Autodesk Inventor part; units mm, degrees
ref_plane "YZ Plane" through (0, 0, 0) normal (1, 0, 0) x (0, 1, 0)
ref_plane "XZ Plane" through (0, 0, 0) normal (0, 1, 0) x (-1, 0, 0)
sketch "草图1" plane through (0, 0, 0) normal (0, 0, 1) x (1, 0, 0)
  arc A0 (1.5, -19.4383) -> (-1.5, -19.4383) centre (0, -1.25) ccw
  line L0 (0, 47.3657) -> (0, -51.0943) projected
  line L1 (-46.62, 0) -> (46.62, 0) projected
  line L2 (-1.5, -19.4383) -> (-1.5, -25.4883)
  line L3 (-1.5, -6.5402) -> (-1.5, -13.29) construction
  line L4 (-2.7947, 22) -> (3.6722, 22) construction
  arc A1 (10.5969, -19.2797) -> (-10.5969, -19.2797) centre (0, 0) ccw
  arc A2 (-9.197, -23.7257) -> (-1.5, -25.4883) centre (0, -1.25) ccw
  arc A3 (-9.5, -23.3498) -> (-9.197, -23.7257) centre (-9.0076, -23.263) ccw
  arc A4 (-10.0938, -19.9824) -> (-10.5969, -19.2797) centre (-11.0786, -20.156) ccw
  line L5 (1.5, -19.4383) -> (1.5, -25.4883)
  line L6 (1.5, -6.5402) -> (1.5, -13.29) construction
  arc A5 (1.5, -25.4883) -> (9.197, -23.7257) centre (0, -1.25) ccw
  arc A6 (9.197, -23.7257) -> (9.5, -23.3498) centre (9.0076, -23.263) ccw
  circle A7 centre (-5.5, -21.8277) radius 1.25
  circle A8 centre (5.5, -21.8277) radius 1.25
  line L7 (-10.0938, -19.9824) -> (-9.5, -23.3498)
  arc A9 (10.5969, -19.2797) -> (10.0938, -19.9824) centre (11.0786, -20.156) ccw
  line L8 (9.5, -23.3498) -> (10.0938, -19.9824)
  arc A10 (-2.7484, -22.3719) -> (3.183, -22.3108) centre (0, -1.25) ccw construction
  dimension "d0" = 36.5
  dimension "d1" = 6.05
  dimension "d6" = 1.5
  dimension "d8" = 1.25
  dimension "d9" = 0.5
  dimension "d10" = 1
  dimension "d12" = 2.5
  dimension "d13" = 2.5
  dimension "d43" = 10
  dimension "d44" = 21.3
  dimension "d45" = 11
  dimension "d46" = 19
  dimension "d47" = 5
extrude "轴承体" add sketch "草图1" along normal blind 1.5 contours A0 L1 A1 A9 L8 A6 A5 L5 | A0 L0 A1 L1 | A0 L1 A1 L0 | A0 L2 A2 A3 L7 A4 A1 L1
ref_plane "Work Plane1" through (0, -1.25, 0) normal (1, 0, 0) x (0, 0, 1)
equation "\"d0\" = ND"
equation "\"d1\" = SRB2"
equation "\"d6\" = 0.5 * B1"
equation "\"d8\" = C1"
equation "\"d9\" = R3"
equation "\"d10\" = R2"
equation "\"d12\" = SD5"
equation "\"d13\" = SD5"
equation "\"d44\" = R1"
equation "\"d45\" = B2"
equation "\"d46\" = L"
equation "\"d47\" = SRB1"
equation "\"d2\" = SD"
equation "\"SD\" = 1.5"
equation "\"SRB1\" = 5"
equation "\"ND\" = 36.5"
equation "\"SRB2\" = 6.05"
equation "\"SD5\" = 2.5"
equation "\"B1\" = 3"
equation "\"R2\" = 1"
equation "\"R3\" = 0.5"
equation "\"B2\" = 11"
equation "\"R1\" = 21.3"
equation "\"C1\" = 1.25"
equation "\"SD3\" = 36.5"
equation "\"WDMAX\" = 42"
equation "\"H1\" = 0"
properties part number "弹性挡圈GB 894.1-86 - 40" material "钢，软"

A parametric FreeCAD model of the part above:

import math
import FreeCAD as App
import Part
import Sketcher

V = App.Vector
Q = App.Units.Quantity

doc = App.newDocument("Part")
body = doc.addObject("PartDesign::Body", "Body")

# Sketch on XY plane
sketch1 = doc.addObject("Sketcher::SketchObject", "Sketch")
body.addObject(sketch1)
sketch1.AttachmentSupport = (doc.XY_Plane, [""])
sketch1.MapMode = "FlatFace"
sketch1.addGeometry(Part.LineSegment(V(1.5, -19.44, 0), V(1.5, -25.49, 0)), False)
sketch1.addGeometry(Part.ArcOfCircle(Part.Circle(V(0, -1.25, 0), V(0, 0, 1), 24.28), math.radians(-86.46), math.radians(-67.74)), False)
sketch1.addGeometry(Part.ArcOfCircle(Part.Circle(V(9.01, -23.26, 0), V(0, 0, 1), 0.5), math.radians(-68), math.radians(-10)), False)
sketch1.addGeometry(Part.LineSegment(V(9.5, -23.35, 0), V(10.09, -19.98, 0)), False)
sketch1.addGeometry(Part.ArcOfCircle(Part.Circle(V(11.08, -20.16, 0), V(0, 0, 1), 1), math.radians(119), math.radians(170)), False)
sketch1.addGeometry(Part.ArcOfCircle(Part.Circle(V(0, 0, 0), V(0, 0, 1), 22), math.radians(-61), math.radians(241)), False)
sketch1.addGeometry(Part.ArcOfCircle(Part.Circle(V(-11.08, -20.16, 0), V(0, 0, 1), 1), math.radians(10), math.radians(61)), False)
sketch1.addGeometry(Part.LineSegment(V(-10.09, -19.98, 0), V(-9.5, -23.35, 0)), False)
sketch1.addGeometry(Part.ArcOfCircle(Part.Circle(V(-9.01, -23.26, 0), V(0, 0, 1), 0.5), math.radians(-170), math.radians(-112)), False)
sketch1.addGeometry(Part.ArcOfCircle(Part.Circle(V(0, -1.25, 0), V(0, 0, 1), 24.29), math.radians(-112.25), math.radians(-93.54)), False)
sketch1.addGeometry(Part.LineSegment(V(-1.5, -25.49, 0), V(-1.5, -19.44, 0)), False)
sketch1.addGeometry(Part.ArcOfCircle(Part.Circle(V(0, -1.25, 0), V(0, 0, 1), 18.25), math.radians(-85), math.radians(265)), False)
sketch1.addGeometry(Part.Circle(V(5.5, -21.83, 0), V(0, 0, 1), 1.25), False)
sketch1.addGeometry(Part.Circle(V(-5.5, -21.83, 0), V(0, 0, 1), 1.25), False)
sketch1.addConstraint(Sketcher.Constraint("Coincident", 0, 2, 1, 1))
sketch1.addConstraint(Sketcher.Constraint("Tangent", 1, 2, 2, 1))
sketch1.addConstraint(Sketcher.Constraint("Tangent", 2, 2, 3, 1))
sketch1.addConstraint(Sketcher.Constraint("Tangent", 3, 2, 4, 2))
sketch1.addConstraint(Sketcher.Constraint("Tangent", 4, 1, 5, 1))
sketch1.addConstraint(Sketcher.Constraint("Tangent", 5, 2, 6, 2))
sketch1.addConstraint(Sketcher.Constraint("Tangent", 6, 1, 7, 1))
sketch1.addConstraint(Sketcher.Constraint("Tangent", 7, 2, 8, 1))
sketch1.addConstraint(Sketcher.Constraint("Tangent", 8, 2, 9, 1))
sketch1.addConstraint(Sketcher.Constraint("Coincident", 9, 2, 10, 1))
sketch1.addConstraint(Sketcher.Constraint("Coincident", 10, 2, 11, 2))
sketch1.addConstraint(Sketcher.Constraint("Coincident", 11, 1, 0, 1))
sketch1.addConstraint(Sketcher.Constraint("Vertical", 0))
sketch1.addConstraint(Sketcher.Constraint("Vertical", 10))
sketch1.addConstraint(Sketcher.Constraint("Coincident", 5, 3, -1, 1))
sketch1.addConstraint(Sketcher.Constraint("Equal", 4, 6))
sketch1.addConstraint(Sketcher.Constraint("Equal", 2, 8))
sketch1.addConstraint(Sketcher.Constraint("Equal", 12, 13))
sketch1.addConstraint(Sketcher.Constraint("Symmetric", 2, 3, 8, 3, -2))
sketch1.addConstraint(Sketcher.Constraint("Symmetric", 12, 3, 13, 3, -2))
sketch1.addConstraint(Sketcher.Constraint("Symmetric", 0, 2, 9, 2, -2))
sketch1.addConstraint(Sketcher.Constraint("PointOnObject", 11, 3, -2))
sketch1.addConstraint(Sketcher.Constraint("Horizontal", 4, 3, 6, 3))
sketch1.addConstraint(Sketcher.Constraint("Radius", 4, Q("1 mm")))
sketch1.addConstraint(Sketcher.Constraint("Diameter", 12, Q("2.5 mm")))
sketch1.addConstraint(Sketcher.Constraint("Radius", 2, Q("0.5 mm")))
sketch1.addConstraint(Sketcher.Constraint("Radius", 11, Q("18.25 mm")))
sketch1.addConstraint(Sketcher.Constraint("Radius", 5, Q("22 mm")))
sketch1.addConstraint(Sketcher.Constraint("DistanceX", 13, 3, 12, 3, Q("11 mm")))
sketch1.addConstraint(Sketcher.Constraint("DistanceY", 0, 2, 0, 1, Q("6.05 mm")))
sketch1.addConstraint(Sketcher.Constraint("DistanceX", -1, 1, 0, 2, Q("1.5 mm")))
sketch1.addConstraint(Sketcher.Constraint("DistanceY", 11, 3, -1, 1, Q("1.25 mm")))
sketch1.addConstraint(Sketcher.Constraint("Angle", 3, Q("79.9994 deg")))
sketch1.addConstraint(Sketcher.Constraint("DistanceX", 12, 3, 2, 2, Q("4 mm")))
sketch1.addConstraint(Sketcher.Constraint("Radius", 1, Q("24.2821 mm")))
sketch1.addConstraint(Sketcher.Constraint("Radius", 9, Q("24.2871 mm")))
sketch1.addConstraint(Sketcher.Constraint("DistanceX", 1, 2, 4, 1, Q("1.4 mm")))
sketch1.addConstraint(Sketcher.Constraint("DistanceY", 1, 2, 12, 3, Q("1.898 mm")))
pad1 = doc.addObject("PartDesign::Pad", "Pad")
body.addObject(pad1)
pad1.Profile = sketch1
pad1.Length = 1.5

doc.recompute()
